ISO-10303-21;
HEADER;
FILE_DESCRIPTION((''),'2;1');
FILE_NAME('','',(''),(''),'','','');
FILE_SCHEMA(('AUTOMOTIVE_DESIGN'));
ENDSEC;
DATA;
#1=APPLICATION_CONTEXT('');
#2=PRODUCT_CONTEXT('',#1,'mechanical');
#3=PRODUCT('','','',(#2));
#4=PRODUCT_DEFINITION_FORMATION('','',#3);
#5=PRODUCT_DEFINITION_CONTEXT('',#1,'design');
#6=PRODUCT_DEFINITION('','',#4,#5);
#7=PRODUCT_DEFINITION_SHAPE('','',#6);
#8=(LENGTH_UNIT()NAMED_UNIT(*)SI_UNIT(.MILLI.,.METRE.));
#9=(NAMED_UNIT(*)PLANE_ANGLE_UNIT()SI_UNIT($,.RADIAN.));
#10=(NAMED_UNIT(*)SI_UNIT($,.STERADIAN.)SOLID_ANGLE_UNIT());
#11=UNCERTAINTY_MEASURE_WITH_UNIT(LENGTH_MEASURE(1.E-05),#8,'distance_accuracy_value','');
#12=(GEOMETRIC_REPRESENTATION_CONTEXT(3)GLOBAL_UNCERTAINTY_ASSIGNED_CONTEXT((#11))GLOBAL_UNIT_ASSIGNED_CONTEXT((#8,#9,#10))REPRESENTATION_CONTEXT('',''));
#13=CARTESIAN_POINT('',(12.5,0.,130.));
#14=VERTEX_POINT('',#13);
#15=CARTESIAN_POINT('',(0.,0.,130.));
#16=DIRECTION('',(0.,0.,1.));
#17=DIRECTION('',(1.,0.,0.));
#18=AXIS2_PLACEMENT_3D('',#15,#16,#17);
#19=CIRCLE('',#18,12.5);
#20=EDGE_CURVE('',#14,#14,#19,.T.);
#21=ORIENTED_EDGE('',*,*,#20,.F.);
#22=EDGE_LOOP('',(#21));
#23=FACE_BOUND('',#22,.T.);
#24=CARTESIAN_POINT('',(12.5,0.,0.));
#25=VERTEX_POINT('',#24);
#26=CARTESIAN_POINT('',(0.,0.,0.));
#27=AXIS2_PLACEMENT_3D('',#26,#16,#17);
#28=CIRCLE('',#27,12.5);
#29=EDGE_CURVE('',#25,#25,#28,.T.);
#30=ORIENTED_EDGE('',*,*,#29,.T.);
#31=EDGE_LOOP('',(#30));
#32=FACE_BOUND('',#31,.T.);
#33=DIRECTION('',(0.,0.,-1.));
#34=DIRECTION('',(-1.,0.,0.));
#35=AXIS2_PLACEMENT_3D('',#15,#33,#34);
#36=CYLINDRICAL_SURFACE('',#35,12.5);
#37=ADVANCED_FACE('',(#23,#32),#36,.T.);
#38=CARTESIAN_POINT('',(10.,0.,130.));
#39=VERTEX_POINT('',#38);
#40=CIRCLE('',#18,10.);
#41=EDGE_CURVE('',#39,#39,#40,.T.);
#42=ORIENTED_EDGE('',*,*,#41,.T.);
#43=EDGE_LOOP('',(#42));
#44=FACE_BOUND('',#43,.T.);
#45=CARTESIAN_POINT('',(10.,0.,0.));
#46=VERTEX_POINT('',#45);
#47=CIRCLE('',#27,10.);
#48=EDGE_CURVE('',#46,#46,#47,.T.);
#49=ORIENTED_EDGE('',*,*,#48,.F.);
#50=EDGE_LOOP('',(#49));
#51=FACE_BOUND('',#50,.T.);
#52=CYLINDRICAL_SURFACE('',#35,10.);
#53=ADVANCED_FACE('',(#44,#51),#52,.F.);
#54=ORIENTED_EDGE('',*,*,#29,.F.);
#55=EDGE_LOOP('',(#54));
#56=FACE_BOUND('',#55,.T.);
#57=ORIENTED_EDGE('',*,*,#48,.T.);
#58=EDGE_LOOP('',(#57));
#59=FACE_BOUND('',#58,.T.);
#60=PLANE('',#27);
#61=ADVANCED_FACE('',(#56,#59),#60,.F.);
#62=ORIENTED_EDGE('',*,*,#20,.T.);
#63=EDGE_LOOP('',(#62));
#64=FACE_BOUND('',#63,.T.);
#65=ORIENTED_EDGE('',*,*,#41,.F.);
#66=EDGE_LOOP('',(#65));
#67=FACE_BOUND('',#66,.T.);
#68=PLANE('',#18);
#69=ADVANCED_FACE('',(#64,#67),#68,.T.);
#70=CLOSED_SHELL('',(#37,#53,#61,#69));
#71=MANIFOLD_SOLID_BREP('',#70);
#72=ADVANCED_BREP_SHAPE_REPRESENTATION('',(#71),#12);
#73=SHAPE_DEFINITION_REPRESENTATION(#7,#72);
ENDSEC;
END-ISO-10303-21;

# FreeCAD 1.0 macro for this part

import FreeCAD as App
import Part
import Sketcher
Q = App.Units.Quantity

doc = App.newDocument("Part")
body = doc.addObject("PartDesign::Body", "Body")

# Sketch on XY plane
sketch1 = body.newObject("Sketcher::SketchObject", "Sketch")
sketch1.AttachmentSupport = (doc.getObject("XY_Plane"), [""])
sketch1.MapMode = "FlatFace"
sketch1.addGeometry(Part.Circle(App.Vector(0, 0, 0), App.Vector(0, 0, 1), 12), False)
sketch1.addGeometry(Part.Circle(App.Vector(0, 0, 0), App.Vector(0, 0, 1), 10), False)
sketch1.addConstraint(Sketcher.Constraint("Coincident", 0, 3, -1, 1))
sketch1.addConstraint(Sketcher.Constraint("Coincident", 1, 3, -1, 1))
sketch1.addConstraint(Sketcher.Constraint("Diameter", 0, Q("25 mm")))
sketch1.addConstraint(Sketcher.Constraint("Diameter", 1, Q("20 mm")))
pad1 = body.newObject("PartDesign::Pad", "Pad")
pad1.Profile = sketch1
pad1.Length = 130

doc.recompute()
